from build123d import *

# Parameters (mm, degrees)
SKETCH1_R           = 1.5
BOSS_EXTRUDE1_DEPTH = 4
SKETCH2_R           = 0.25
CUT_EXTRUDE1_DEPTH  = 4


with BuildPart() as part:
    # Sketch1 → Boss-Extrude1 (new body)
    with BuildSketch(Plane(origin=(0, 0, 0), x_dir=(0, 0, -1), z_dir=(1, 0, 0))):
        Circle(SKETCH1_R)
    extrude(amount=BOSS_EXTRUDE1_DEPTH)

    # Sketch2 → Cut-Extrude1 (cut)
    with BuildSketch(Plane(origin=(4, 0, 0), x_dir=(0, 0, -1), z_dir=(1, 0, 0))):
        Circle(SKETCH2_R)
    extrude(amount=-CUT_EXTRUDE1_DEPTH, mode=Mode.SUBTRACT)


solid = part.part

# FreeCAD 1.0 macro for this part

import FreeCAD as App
import Part
import Sketcher

V = App.Vector

doc = App.newDocument("Part")
body = doc.addObject("PartDesign::Body", "Body")

sketch1 = body.newObject("Sketcher::SketchObject", "Sketch")
sketch1.AttachmentSupport = (doc.getObject("YZ_Plane"), [""])
sketch1.MapMode = "FlatFace"
sketch1.addGeometry(Part.Circle(V(0, 0, 0), V(0, 0, 1), 1.5), False)
sketch1.addConstraint(Sketcher.Constraint("Coincident", 0, 3, -1, 1))
sketch1.addConstraint(Sketcher.Constraint("Diameter", 0, 3.0))
pad1 = body.newObject("PartDesign::Pad", "Pad")
pad1.Profile = sketch1
pad1.Length = 4

sketch2 = body.newObject("Sketcher::SketchObject", "Sketch001")
sketch2.AttachmentSupport = (doc.getObject("YZ_Plane"), [""])
sketch2.MapMode = "FlatFace"
sketch2.AttachmentOffset = App.Placement(V(0, 0, 4), App.Rotation())
sketch2.addGeometry(Part.Circle(V(0, 0, 0), V(0, 0, 1), 0.25), False)
sketch2.addConstraint(Sketcher.Constraint("Coincident", 0, 3, -1, 1))
sketch2.addConstraint(Sketcher.Constraint("Diameter", 0, 0.5))
pocket1 = body.newObject("PartDesign::Pocket", "Pocket")
pocket1.Profile = sketch2
pocket1.Length = 4

doc.recompute()
